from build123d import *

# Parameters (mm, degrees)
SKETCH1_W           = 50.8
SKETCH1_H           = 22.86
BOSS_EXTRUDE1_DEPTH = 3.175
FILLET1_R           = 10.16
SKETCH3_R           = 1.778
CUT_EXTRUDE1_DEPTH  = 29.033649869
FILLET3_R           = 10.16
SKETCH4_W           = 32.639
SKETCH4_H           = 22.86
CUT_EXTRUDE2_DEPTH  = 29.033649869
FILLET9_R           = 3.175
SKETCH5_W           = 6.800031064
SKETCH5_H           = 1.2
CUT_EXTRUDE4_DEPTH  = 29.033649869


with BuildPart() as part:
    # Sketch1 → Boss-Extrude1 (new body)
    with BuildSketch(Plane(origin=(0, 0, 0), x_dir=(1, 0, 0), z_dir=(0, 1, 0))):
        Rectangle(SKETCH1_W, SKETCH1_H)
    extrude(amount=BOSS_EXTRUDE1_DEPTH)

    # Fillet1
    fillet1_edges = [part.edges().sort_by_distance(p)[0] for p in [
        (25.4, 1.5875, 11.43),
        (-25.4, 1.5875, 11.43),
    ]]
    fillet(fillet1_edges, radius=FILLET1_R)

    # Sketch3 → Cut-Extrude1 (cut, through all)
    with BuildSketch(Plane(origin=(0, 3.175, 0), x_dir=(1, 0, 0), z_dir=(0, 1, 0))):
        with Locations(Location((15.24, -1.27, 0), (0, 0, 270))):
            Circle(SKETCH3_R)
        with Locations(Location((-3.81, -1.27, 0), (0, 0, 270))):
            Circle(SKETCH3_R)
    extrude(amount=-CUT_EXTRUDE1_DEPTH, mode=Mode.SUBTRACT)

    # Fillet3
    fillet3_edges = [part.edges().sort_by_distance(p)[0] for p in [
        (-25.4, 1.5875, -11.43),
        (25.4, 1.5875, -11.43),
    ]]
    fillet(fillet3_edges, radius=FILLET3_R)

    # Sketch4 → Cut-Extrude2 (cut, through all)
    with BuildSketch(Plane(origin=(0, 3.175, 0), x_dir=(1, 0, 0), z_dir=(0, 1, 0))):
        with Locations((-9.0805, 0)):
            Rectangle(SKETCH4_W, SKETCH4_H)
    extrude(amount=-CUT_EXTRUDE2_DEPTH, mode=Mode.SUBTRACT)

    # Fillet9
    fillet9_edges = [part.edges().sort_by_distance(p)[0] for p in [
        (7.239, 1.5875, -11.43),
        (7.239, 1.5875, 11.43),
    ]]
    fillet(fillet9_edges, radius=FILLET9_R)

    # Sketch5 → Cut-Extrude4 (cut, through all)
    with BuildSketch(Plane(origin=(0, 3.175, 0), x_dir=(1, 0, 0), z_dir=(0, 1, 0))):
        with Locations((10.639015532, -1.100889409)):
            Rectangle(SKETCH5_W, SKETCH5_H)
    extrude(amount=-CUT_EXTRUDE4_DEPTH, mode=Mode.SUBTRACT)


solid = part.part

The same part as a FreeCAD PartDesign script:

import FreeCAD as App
import Part
import Sketcher
Q = App.Units.Quantity


def edges_at(feature, points):
    """Names of the edges that pass closest to the given points."""
    edges = feature.Shape.Edges
    near = lambda p: min(range(len(edges)), key=lambda i: edges[i].distToShape(Part.Vertex(*p))[0])
    return sorted({f"Edge{near(p) + 1}" for p in points})

doc = App.newDocument("Part")
body = doc.addObject("PartDesign::Body", "Body")

# Sketch on XZ plane
sketch1 = doc.addObject("Sketcher::SketchObject", "Sketch")
body.addObject(sketch1)
sketch1.AttachmentSupport = (doc.XZ_Plane, [""])
sketch1.MapMode = "FlatFace"
sketch1.addGeometry([
    Part.LineSegment(App.Vector(-25, -11, 0), App.Vector(-25, 11, 0)),
    Part.LineSegment(App.Vector(-25, 11, 0), App.Vector(25, 11, 0)),
    Part.LineSegment(App.Vector(25, 11, 0), App.Vector(25, -11, 0)),
    Part.LineSegment(App.Vector(25, -11, 0), App.Vector(-25, -11, 0)),
], False)
sketch1.addConstraint([
    Sketcher.Constraint("Coincident", 0, 2, 1, 1),
    Sketcher.Constraint("Coincident", 1, 2, 2, 1),
    Sketcher.Constraint("Coincident", 2, 2, 3, 1),
    Sketcher.Constraint("Coincident", 3, 2, 0, 1),
    Sketcher.Constraint("Vertical", 0),
    Sketcher.Constraint("Horizontal", 1),
    Sketcher.Constraint("Vertical", 2),
    Sketcher.Constraint("Horizontal", 3),
    Sketcher.Constraint("Symmetric", 0, 2, 2, 2, -1, 1),
    Sketcher.Constraint("DistanceX", 1, 1, 1, 2, Q("2 in")),
    Sketcher.Constraint("DistanceY", 0, 1, 0, 2, Q("0.9 in")),
])
pad1 = doc.addObject("PartDesign::Pad", "Pad")
body.addObject(pad1)
pad1.Profile = sketch1
pad1.Length = Q("0.125 in")
pad1.Reversed = True
doc.recompute()

fillet = doc.addObject("PartDesign::Fillet", "Fillet")
body.addObject(fillet)
fillet.Base = (pad1, edges_at(pad1, [(25.4, 1.587, 11.43), (-25.4, 1.587, 11.43)]))
fillet.Radius = Q("0.4 in")

# Sketch on XZ plane
sketch2 = doc.addObject("Sketcher::SketchObject", "Sketch001")
body.addObject(sketch2)
sketch2.AttachmentSupport = (doc.XZ_Plane, [""])
sketch2.MapMode = "FlatFace"
sketch2.AttachmentOffset = App.Placement(App.Vector(0, 0, -0.125 * 25.4), App.Rotation())
sketch2.addGeometry([
    Part.Circle(App.Vector(15.2, 1.3, 0), App.Vector(0, 0, 1), 1.8),
    Part.Circle(App.Vector(-3.8, 1.3, 0), App.Vector(0, 0, 1), 1.8),
], False)
sketch2.addConstraint([
    Sketcher.Constraint("Equal", 0, 1),
    Sketcher.Constraint("Horizontal", 0, 3, 1, 3),
    Sketcher.Constraint("Diameter", 0, Q("0.14 in")),
    Sketcher.Constraint("DistanceX", -1, 1, 0, 3, Q("0.6 in")),
    Sketcher.Constraint("DistanceY", -1, 1, 0, 3, Q("0.05 in")),
    Sketcher.Constraint("DistanceX", 1, 3, -1, 1, Q("0.15 in")),
])
pocket1 = doc.addObject("PartDesign::Pocket", "Pocket")
body.addObject(pocket1)
pocket1.Profile = sketch2
pocket1.Type = "ThroughAll"
pocket1.Reversed = True
doc.recompute()

fillet2 = doc.addObject("PartDesign::Fillet", "Fillet001")
body.addObject(fillet2)
fillet2.Base = (pocket1, edges_at(pocket1, [(-25.4, 1.587, -11.43), (25.4, 1.587, -11.43)]))
fillet2.Radius = Q("0.4 in")

# Sketch on XZ plane
sketch3 = doc.addObject("Sketcher::SketchObject", "Sketch002")
body.addObject(sketch3)
sketch3.AttachmentSupport = (doc.XZ_Plane, [""])
sketch3.MapMode = "FlatFace"
sketch3.AttachmentOffset = App.Placement(App.Vector(0, 0, -0.125 * 25.4), App.Rotation())
sketch3.addGeometry([
    Part.LineSegment(App.Vector(-25, -11, 0), App.Vector(-25, 11, 0)),
    Part.LineSegment(App.Vector(-25, 11, 0), App.Vector(7, 11, 0)),
    Part.LineSegment(App.Vector(7, 11, 0), App.Vector(7, -11, 0)),
    Part.LineSegment(App.Vector(7, -11, 0), App.Vector(-25, -11, 0)),
], False)
sketch3.addConstraint([
    Sketcher.Constraint("Coincident", 0, 2, 1, 1),
    Sketcher.Constraint("Coincident", 1, 2, 2, 1),
    Sketcher.Constraint("Coincident", 2, 2, 3, 1),
    Sketcher.Constraint("Coincident", 3, 2, 0, 1),
    Sketcher.Constraint("Vertical", 0),
    Sketcher.Constraint("Horizontal", 1),
    Sketcher.Constraint("Vertical", 2),
    Sketcher.Constraint("Horizontal", 3),
    Sketcher.Constraint("DistanceY", 0, 1, 0, 2, Q("0.9 in")),
    Sketcher.Constraint("DistanceX", 0, 2, -1, 1, Q("1 in")),
    Sketcher.Constraint("DistanceX", 1, 1, 1, 2, Q("1.285 in")),
    Sketcher.Constraint("DistanceY", -1, 1, 0, 2, Q("0.45 in")),
])
pocket2 = doc.addObject("PartDesign::Pocket", "Pocket001")
body.addObject(pocket2)
pocket2.Profile = sketch3
pocket2.Type = "ThroughAll"
pocket2.Reversed = True
doc.recompute()

fillet3 = doc.addObject("PartDesign::Fillet", "Fillet002")
body.addObject(fillet3)
fillet3.Base = (pocket2, edges_at(pocket2, [(7.239, 1.587, -11.43), (7.239, 1.587, 11.43)]))
fillet3.Radius = Q("0.125 in")

# Sketch on XZ plane
sketch4 = doc.addObject("Sketcher::SketchObject", "Sketch003")
body.addObject(sketch4)
sketch4.AttachmentSupport = (doc.XZ_Plane, [""])
sketch4.MapMode = "FlatFace"
sketch4.AttachmentOffset = App.Placement(App.Vector(0, 0, -0.125 * 25.4), App.Rotation())
sketch4.addGeometry([
    Part.LineSegment(App.Vector(7.2, 0.5, 0), App.Vector(7.2, 1.7, 0)),
    Part.LineSegment(App.Vector(7.2, 1.7, 0), App.Vector(14, 1.7, 0)),
    Part.LineSegment(App.Vector(14, 1.7, 0), App.Vector(14, 0.5, 0)),
    Part.LineSegment(App.Vector(14, 0.5, 0), App.Vector(7.2, 0.5, 0)),
], False)
sketch4.addConstraint([
    Sketcher.Constraint("Coincident", 0, 2, 1, 1),
    Sketcher.Constraint("Coincident", 1, 2, 2, 1),
    Sketcher.Constraint("Coincident", 2, 2, 3, 1),
    Sketcher.Constraint("Coincident", 3, 2, 0, 1),
    Sketcher.Constraint("Vertical", 0),
    Sketcher.Constraint("Horizontal", 1),
    Sketcher.Constraint("Vertical", 2),
    Sketcher.Constraint("Horizontal", 3),
    Sketcher.Constraint("DistanceX", -1, 1, 0, 2, Q("0.285 in")),
    Sketcher.Constraint("DistanceY", 0, 1, 0, 2, Q("1.2 mm")),
    Sketcher.Constraint("DistanceX", 1, 1, 1, 2, Q("6.800031 mm")),
    Sketcher.Constraint("DistanceY", -1, 1, 0, 2, Q("1.700889 mm")),
])
pocket3 = doc.addObject("PartDesign::Pocket", "Pocket002")
body.addObject(pocket3)
pocket3.Profile = sketch4
pocket3.Type = "ThroughAll"
pocket3.Reversed = True

doc.recompute()
